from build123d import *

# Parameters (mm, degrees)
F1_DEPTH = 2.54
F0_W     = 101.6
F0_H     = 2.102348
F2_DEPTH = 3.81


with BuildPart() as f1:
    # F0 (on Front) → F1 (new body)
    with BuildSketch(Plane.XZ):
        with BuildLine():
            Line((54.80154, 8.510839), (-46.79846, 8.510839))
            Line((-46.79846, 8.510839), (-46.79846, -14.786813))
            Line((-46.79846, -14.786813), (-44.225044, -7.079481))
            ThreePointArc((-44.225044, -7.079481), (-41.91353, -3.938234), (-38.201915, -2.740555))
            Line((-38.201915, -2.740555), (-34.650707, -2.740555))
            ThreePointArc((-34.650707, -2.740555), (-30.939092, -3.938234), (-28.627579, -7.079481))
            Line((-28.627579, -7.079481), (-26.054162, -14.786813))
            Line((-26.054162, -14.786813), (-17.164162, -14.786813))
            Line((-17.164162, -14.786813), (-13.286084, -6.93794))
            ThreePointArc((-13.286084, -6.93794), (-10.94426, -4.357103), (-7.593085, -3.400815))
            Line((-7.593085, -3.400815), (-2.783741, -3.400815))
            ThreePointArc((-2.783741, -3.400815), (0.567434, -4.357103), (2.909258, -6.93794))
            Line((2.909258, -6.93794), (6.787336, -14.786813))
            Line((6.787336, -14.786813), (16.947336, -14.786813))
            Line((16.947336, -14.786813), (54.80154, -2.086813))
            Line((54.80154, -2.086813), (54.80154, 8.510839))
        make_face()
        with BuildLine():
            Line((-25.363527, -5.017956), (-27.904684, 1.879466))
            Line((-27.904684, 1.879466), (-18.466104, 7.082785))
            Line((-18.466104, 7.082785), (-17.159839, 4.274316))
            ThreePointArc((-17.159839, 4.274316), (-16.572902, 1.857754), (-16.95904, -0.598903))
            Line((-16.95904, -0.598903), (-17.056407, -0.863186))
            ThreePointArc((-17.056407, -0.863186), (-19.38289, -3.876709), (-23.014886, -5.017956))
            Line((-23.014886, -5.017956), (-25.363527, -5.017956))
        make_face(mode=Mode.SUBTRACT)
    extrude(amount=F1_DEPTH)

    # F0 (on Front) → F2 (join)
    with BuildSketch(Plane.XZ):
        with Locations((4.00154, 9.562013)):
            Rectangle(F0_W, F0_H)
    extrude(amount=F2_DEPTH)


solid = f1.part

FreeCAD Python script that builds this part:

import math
import FreeCAD as App
import Part
import Sketcher
Q = App.Units.Quantity


def add_polygon(sketch, points):
    """Adds a closed chain of lines whose ends are joined by coincident constraints."""
    first, n = sketch.GeometryCount, len(points)
    for a, b in zip(points, points[1:] + points[:1]):
        sketch.addGeometry(Part.LineSegment(App.Vector(*a, 0), App.Vector(*b, 0)), False)
    for i in range(n):
        sketch.addConstraint(Sketcher.Constraint("Coincident", first + i, 2, first + (i + 1) % n, 1))

doc = App.newDocument("Part")
body = doc.addObject("PartDesign::Body", "Body")

# Sketch on XZ plane
sketch1 = doc.addObject("Sketcher::SketchObject", "Sketch")
body.addObject(sketch1)
sketch1.AttachmentSupport = (doc.XZ_Plane, [""])
sketch1.MapMode = "FlatFace"
sketch1.addGeometry([
    Part.LineSegment(App.Vector(54.80154, 8.510839, 0), App.Vector(-46.79846, 8.510839, 0)),  # 0
    Part.LineSegment(App.Vector(-46.79846, 8.510839, 0), App.Vector(-46.79846, -14.786813, 0)),  # 1
    Part.LineSegment(App.Vector(-46.79846, -14.786813, 0), App.Vector(-44.225044, -7.079481, 0)),  # 2
    Part.ArcOfCircle(Part.Circle(App.Vector(-38.201914, -9.090556, 0), App.Vector(0, 0, 1), 6.350001), math.radians(90.000006), math.radians(161.536245)),  # 3
    Part.LineSegment(App.Vector(-38.201915, -2.740555, 0), App.Vector(-34.650707, -2.740555, 0)),  # 4
    Part.ArcOfCircle(Part.Circle(App.Vector(-34.650707, -9.090554, 0), App.Vector(0, 0, 1), 6.349999), math.radians(18.463739), math.radians(90.000001)),  # 5
    Part.LineSegment(App.Vector(-28.627579, -7.079481, 0), App.Vector(-26.054162, -14.786813, 0)),  # 6
    Part.LineSegment(App.Vector(-26.054162, -14.786813, 0), App.Vector(-17.164162, -14.786813, 0)),  # 7
    Part.LineSegment(App.Vector(-17.164162, -14.786813, 0), App.Vector(-13.286084, -6.93794, 0)),  # 8
    Part.ArcOfCircle(Part.Circle(App.Vector(-7.593086, -9.750815, 0), App.Vector(0, 0, 1), 6.35), math.radians(89.999995), math.radians(153.706314)),  # 9
    Part.LineSegment(App.Vector(-7.593085, -3.400815, 0), App.Vector(-2.783741, -3.400815, 0)),  # 10
    Part.ArcOfCircle(Part.Circle(App.Vector(-2.78374, -9.750815, 0), App.Vector(0, 0, 1), 6.35), math.radians(26.293686), math.radians(90.000005)),  # 11
    Part.LineSegment(App.Vector(2.909258, -6.93794, 0), App.Vector(6.787336, -14.786813, 0)),  # 12
    Part.LineSegment(App.Vector(6.787336, -14.786813, 0), App.Vector(16.947336, -14.786813, 0)),  # 13
    Part.LineSegment(App.Vector(16.947336, -14.786813, 0), App.Vector(54.80154, -2.086813, 0)),  # 14
    Part.LineSegment(App.Vector(54.80154, -2.086813, 0), App.Vector(54.80154, 8.510839, 0)),  # 15
    Part.LineSegment(App.Vector(-23.014886, -5.017956, 0), App.Vector(-25.363527, -5.017956, 0)),  # 16
    Part.LineSegment(App.Vector(-25.363527, -5.017956, 0), App.Vector(-27.904684, 1.879466, 0)),  # 17
    Part.LineSegment(App.Vector(-27.904684, 1.879466, 0), App.Vector(-18.466104, 7.082785, 0)),  # 18
    Part.LineSegment(App.Vector(-18.466104, 7.082785, 0), App.Vector(-17.159839, 4.274316, 0)),  # 19
    Part.ArcOfCircle(Part.Circle(App.Vector(-22.917515, 1.596327, 0), App.Vector(0, 0, 1), 6.349997), math.radians(-20.224877), math.radians(24.943906)),  # 20
    Part.LineSegment(App.Vector(-16.95904, -0.598903, 0), App.Vector(-17.056407, -0.863186, 0)),  # 21
    Part.ArcOfCircle(Part.Circle(App.Vector(-23.014886, 1.332044, 0), App.Vector(0, 0, 1), 6.35), math.radians(-90.000002), math.radians(-20.224872)),  # 22
], False)
sketch1.addConstraint([
    Sketcher.Constraint("Coincident", 0, 2, 1, 1),
    Sketcher.Constraint("Coincident", 1, 2, 2, 1),
    Sketcher.Constraint("Tangent", 2, 2, 3, 2),
    Sketcher.Constraint("Tangent", 3, 1, 4, 1),
    Sketcher.Constraint("Tangent", 4, 2, 5, 2),
    Sketcher.Constraint("Tangent", 5, 1, 6, 1),
    Sketcher.Constraint("Coincident", 6, 2, 7, 1),
    Sketcher.Constraint("Coincident", 7, 2, 8, 1),
    Sketcher.Constraint("Tangent", 8, 2, 9, 2),
    Sketcher.Constraint("Tangent", 9, 1, 10, 1),
    Sketcher.Constraint("Tangent", 10, 2, 11, 2),
    Sketcher.Constraint("Tangent", 11, 1, 12, 1),
    Sketcher.Constraint("Coincident", 12, 2, 13, 1),
    Sketcher.Constraint("Coincident", 13, 2, 14, 1),
    Sketcher.Constraint("Coincident", 14, 2, 15, 1),
    Sketcher.Constraint("Coincident", 15, 2, 0, 1),
    Sketcher.Constraint("Coincident", 16, 2, 17, 1),
    Sketcher.Constraint("Coincident", 17, 2, 18, 1),
    Sketcher.Constraint("Coincident", 18, 2, 19, 1),
    Sketcher.Constraint("Tangent", 19, 2, 20, 2),
    Sketcher.Constraint("Tangent", 20, 1, 21, 1),
    Sketcher.Constraint("Tangent", 21, 2, 22, 2),
    Sketcher.Constraint("Tangent", 22, 1, 16, 1),
    Sketcher.Constraint("Horizontal", 0),
    Sketcher.Constraint("Vertical", 1),
    Sketcher.Constraint("Horizontal", 4),
    Sketcher.Constraint("Horizontal", 7),
    Sketcher.Constraint("Horizontal", 10),
    Sketcher.Constraint("Horizontal", 13),
    Sketcher.Constraint("Vertical", 15),
    Sketcher.Constraint("Horizontal", 16),
    Sketcher.Constraint("Equal", 5, 9),
    Sketcher.Constraint("Equal", 9, 11),
    Sketcher.Constraint("Equal", 5, 20),
    Sketcher.Constraint("Equal", 11, 22),
    Sketcher.Constraint("Horizontal", 2, 2, 5, 1),
    Sketcher.Constraint("Horizontal", 1, 2, 6, 2),
    Sketcher.Constraint("Horizontal", 8, 2, 11, 1),
    Sketcher.Constraint("Horizontal", 7, 2, 12, 2),
    Sketcher.Constraint("Equal", 2, 6),
    Sketcher.Constraint("DistanceX", 0, 2, 0, 1, Q("4 in")),
    Sketcher.Constraint("Radius", 3, Q("0.25 in")),
    Sketcher.Constraint("DistanceX", 13, 1, 13, 2, Q("0.4 in")),
    Sketcher.Constraint("DistanceX", 7, 1, 7, 2, Q("0.35 in")),
    Sketcher.Constraint("DistanceY", 13, 2, 14, 2, Q("0.5 in")),
    Sketcher.Constraint("DistanceX", 4, 1, 4, 2, 3.551208),
    Sketcher.Constraint("DistanceX", 16, 2, 16, 1, 2.348641),
    Sketcher.Constraint("DistanceY", 1, 2, 1, 1, 23.297652),
    Sketcher.Constraint("DistanceX", 3, 3, 20, 3, 15.284399),
    Sketcher.Constraint("DistanceY", 5, 3, 22, 3, 10.422598),
    Sketcher.Constraint("DistanceX", 22, 3, 9, 3, 15.4218),
    Sketcher.Constraint("DistanceY", 7, 2, 9, 3, 5.035998),
    Sketcher.Constraint("DistanceX", 8, 2, 9, 3, 5.692998),
    Sketcher.Constraint("DistanceX", 17, 2, 22, 3, 4.889798),
    Sketcher.Constraint("DistanceX", 19, 2, 20, 1, 0.200799),
    Sketcher.Constraint("DistanceY", 21, 2, 19, 2, 5.137502),
    Sketcher.Constraint("Distance", 14, 39.927819),
    Sketcher.Constraint("Distance", 17, 7.35064),
    Sketcher.Constraint("Distance", 19, 3.09739),
    Sketcher.Constraint("Distance", 21, 0.281648),
    Sketcher.Constraint("DistanceX", 11, 3, -1, 1, 2.78374),
    Sketcher.Constraint("DistanceY", -1, 1, 0, 2, 8.510839),
    Sketcher.Constraint("DistanceY", 2, 2, -1, 1, 7.079481),
])
pad1 = doc.addObject("PartDesign::Pad", "Pad")
body.addObject(pad1)
pad1.Profile = sketch1
pad1.Length = Q("0.1 in")

# Sketch on XZ plane
sketch2 = doc.addObject("Sketcher::SketchObject", "Sketch001")
body.addObject(sketch2)
sketch2.AttachmentSupport = (doc.XZ_Plane, [""])
sketch2.MapMode = "FlatFace"
add_polygon(sketch2, [(-46.79846, 10.613187), (-46.79846, 8.510839), (54.80154, 8.510839), (54.80154, 10.613187)])  # lines 0-3
sketch2.addConstraint([
    Sketcher.Constraint("Vertical", 0),
    Sketcher.Constraint("Horizontal", 1),
    Sketcher.Constraint("Vertical", 2),
    Sketcher.Constraint("Horizontal", 3),
    Sketcher.Constraint("DistanceX", 1, 1, 1, 2, Q("4 in")),
    Sketcher.Constraint("DistanceY", 0, 2, 0, 1, 2.102348),
    Sketcher.Constraint("DistanceX", 0, 2, -1, 1, 46.79846),
    Sketcher.Constraint("DistanceY", -1, 1, 0, 2, 8.510839),
])
pad2 = doc.addObject("PartDesign::Pad", "Pad001")
body.addObject(pad2)
pad2.Profile = sketch2
pad2.Length = Q("0.15 in")

doc.recompute()
